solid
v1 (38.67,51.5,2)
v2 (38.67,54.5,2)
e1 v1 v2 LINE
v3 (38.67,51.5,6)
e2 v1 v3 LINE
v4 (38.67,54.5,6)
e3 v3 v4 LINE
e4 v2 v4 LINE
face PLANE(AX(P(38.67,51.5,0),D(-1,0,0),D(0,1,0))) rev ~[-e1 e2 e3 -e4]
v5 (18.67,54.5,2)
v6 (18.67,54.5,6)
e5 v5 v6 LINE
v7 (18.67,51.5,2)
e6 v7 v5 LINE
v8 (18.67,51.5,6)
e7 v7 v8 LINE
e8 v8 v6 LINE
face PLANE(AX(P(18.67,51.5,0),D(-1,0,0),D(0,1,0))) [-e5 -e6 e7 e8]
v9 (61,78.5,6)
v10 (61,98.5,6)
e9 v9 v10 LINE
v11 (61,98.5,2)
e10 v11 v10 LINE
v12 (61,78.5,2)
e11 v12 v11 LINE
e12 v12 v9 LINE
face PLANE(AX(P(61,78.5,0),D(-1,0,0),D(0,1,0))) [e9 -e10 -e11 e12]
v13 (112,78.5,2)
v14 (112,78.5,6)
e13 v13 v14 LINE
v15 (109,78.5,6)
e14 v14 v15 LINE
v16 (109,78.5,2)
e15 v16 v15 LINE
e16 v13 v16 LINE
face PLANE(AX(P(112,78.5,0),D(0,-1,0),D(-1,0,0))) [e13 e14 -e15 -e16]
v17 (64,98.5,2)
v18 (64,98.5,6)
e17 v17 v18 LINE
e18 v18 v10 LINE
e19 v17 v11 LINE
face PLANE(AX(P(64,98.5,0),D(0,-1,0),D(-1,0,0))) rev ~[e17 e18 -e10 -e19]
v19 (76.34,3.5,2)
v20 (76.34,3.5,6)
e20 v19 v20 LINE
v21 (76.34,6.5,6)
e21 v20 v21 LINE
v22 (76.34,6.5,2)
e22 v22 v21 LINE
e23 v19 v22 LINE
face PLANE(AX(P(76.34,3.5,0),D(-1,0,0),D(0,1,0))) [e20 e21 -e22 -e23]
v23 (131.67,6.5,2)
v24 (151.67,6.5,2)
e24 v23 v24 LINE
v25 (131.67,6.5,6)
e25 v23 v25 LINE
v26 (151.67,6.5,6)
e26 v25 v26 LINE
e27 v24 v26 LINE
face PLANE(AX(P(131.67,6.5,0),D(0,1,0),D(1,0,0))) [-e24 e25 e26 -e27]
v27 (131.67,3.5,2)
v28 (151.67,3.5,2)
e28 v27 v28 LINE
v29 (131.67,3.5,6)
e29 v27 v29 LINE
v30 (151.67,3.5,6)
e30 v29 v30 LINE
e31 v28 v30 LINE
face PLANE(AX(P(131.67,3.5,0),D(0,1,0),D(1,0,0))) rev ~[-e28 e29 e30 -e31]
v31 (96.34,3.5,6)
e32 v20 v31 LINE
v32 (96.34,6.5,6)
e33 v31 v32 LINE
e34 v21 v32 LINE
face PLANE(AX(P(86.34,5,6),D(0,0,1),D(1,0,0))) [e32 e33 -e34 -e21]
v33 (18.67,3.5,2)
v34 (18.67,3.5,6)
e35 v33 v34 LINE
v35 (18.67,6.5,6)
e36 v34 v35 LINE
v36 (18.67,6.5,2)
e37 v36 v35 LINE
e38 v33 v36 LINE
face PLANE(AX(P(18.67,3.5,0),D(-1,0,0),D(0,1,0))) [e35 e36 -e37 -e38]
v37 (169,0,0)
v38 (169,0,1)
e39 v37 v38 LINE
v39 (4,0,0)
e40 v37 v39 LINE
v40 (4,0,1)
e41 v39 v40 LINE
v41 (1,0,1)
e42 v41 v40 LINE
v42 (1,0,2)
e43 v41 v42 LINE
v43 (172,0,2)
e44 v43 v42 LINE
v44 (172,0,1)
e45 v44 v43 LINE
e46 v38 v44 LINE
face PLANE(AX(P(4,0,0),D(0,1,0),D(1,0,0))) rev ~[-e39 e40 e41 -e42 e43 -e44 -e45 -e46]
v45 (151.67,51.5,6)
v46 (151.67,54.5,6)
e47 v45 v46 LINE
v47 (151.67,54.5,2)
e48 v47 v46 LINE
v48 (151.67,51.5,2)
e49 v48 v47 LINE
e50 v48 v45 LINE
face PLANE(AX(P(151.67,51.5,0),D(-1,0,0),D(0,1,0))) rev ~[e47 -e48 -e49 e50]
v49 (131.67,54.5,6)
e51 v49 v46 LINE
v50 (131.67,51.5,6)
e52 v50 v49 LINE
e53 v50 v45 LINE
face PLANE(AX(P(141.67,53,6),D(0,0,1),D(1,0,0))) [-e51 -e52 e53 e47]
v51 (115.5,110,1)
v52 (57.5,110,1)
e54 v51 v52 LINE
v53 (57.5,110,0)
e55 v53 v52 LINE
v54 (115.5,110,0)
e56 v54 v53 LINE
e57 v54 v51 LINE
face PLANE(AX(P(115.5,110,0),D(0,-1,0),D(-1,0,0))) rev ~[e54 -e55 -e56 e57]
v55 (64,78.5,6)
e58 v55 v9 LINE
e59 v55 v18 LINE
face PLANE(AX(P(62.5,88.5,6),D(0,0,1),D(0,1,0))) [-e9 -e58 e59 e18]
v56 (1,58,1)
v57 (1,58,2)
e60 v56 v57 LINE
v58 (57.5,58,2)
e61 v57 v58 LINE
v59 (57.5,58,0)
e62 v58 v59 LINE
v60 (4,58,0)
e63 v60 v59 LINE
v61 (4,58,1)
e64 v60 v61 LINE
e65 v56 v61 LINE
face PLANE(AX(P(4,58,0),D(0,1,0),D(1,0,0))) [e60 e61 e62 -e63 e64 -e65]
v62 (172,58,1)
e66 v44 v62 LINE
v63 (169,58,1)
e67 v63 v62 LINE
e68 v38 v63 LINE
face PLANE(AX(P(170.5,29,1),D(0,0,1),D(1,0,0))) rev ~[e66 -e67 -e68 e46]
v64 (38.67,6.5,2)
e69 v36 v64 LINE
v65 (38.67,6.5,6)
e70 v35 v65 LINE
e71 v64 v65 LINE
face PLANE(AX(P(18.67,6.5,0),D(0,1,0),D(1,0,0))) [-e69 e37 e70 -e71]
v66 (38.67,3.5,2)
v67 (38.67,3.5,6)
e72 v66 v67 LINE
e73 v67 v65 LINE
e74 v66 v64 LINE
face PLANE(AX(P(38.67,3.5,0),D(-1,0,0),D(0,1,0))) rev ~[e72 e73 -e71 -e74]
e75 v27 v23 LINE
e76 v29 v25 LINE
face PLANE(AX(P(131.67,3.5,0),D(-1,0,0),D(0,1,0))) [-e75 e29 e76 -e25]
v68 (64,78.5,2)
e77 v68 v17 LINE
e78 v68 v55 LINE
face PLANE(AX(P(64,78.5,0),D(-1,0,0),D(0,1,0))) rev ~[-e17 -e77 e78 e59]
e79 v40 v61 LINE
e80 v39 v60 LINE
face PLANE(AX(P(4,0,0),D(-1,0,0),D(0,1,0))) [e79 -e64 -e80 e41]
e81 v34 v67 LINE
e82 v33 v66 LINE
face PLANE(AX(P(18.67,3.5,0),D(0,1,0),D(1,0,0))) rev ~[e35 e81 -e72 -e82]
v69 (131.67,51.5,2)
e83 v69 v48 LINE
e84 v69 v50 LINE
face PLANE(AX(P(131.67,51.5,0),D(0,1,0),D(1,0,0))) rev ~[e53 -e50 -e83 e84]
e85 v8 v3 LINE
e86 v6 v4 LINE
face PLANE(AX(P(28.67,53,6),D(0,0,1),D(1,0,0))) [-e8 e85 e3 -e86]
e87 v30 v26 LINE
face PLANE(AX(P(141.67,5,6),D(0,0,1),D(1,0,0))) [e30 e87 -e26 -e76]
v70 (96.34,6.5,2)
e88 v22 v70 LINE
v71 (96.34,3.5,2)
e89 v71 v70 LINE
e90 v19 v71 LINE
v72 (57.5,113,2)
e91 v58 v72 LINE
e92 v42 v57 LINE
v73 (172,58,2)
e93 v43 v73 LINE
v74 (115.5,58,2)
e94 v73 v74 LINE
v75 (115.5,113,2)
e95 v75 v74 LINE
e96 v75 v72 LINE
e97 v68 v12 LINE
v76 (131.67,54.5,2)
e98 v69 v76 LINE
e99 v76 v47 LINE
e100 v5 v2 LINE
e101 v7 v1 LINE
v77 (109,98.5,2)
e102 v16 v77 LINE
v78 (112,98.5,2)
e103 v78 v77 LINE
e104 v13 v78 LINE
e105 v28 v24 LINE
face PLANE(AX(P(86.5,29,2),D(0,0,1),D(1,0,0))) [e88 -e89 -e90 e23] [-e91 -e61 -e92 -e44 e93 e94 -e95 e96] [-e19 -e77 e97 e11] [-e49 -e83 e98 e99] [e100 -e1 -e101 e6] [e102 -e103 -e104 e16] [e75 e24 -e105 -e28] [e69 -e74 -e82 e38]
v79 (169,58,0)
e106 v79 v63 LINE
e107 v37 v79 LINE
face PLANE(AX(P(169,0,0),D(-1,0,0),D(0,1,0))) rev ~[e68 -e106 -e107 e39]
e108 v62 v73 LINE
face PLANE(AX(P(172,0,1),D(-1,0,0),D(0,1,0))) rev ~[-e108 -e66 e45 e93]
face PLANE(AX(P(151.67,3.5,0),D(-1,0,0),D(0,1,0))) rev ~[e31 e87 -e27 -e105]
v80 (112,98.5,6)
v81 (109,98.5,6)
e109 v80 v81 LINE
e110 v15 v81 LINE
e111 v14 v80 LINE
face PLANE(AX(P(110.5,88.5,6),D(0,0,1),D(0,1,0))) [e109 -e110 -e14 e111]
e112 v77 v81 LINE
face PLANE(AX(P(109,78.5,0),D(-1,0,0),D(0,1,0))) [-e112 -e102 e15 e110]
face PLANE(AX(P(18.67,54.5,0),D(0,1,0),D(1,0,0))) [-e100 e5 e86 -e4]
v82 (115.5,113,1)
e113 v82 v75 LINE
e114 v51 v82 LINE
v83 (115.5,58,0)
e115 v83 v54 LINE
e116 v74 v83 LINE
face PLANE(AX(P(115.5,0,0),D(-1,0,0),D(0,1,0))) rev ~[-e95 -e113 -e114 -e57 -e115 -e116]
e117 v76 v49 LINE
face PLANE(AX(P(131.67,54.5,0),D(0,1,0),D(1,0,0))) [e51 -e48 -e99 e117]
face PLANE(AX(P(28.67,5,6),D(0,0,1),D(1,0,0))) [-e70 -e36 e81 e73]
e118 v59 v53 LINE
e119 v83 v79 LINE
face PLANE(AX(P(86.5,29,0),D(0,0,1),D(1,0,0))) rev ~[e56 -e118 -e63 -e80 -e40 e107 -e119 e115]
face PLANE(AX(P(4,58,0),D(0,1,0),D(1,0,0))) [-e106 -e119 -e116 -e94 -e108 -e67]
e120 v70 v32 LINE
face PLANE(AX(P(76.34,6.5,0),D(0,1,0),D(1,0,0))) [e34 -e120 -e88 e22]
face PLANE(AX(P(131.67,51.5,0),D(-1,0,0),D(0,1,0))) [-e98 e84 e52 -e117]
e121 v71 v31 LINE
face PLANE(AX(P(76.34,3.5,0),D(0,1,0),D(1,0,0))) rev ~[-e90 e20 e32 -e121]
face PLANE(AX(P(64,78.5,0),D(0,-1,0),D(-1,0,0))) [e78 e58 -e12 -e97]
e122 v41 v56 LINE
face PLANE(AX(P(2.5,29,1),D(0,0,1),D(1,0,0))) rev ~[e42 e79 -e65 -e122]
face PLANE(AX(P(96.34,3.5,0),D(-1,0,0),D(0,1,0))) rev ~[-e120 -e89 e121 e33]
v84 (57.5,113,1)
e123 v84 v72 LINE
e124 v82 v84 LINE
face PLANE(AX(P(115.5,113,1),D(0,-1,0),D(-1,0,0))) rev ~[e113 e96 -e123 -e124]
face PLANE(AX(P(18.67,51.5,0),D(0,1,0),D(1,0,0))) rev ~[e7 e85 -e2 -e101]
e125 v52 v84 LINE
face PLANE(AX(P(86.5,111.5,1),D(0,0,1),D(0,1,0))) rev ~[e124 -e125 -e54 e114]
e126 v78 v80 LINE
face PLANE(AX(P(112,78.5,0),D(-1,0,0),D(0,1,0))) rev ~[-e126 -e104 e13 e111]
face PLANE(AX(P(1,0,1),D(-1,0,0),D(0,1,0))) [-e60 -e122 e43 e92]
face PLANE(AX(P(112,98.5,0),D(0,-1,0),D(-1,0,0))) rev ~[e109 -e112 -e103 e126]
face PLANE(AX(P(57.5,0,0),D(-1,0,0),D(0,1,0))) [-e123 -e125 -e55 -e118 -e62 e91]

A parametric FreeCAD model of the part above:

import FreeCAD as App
import Part
import Sketcher
from FreeCAD import Vector
Q = App.Units.Quantity


def add_polygon(sketch, points):
    """Adds a closed chain of lines whose ends are joined by coincident constraints."""
    first, n = sketch.GeometryCount, len(points)
    for a, b in zip(points, points[1:] + points[:1]):
        sketch.addGeometry(Part.LineSegment(App.Vector(*a, 0), App.Vector(*b, 0)), False)
    for i in range(n):
        sketch.addConstraint(Sketcher.Constraint("Coincident", first + i, 2, first + (i + 1) % n, 1))

doc = App.newDocument("Part")
body = doc.addObject("PartDesign::Body", "Body")

sketch1 = doc.addObject("Sketcher::SketchObject", "Sketch")
body.addObject(sketch1)
sketch1.AttachmentSupport = (doc.XY_Plane, [""])
sketch1.MapMode = "FlatFace"
sketch1.AttachmentOffset = App.Placement(Vector(0, 0, 1), App.Rotation())
add_polygon(sketch1, [(169, 58), (169, 0), (172, 0), (172, 58)])
sketch1.addConstraint(Sketcher.Constraint("Vertical", 0))
sketch1.addConstraint(Sketcher.Constraint("Horizontal", 1))
sketch1.addConstraint(Sketcher.Constraint("Vertical", 2))
sketch1.addConstraint(Sketcher.Constraint("Horizontal", 3))
sketch1.addConstraint(Sketcher.Constraint("PointOnObject", 0, 2, -1))
sketch1.addConstraint(Sketcher.Constraint("DistanceX", 1, 1, 1, 2, Q("3 mm")))
sketch1.addConstraint(Sketcher.Constraint("DistanceY", 0, 2, 0, 1, Q("58 mm")))
sketch1.addConstraint(Sketcher.Constraint("DistanceX", -1, 1, 0, 2, Q("169 mm")))
pad1 = doc.addObject("PartDesign::Pad", "Pad")
body.addObject(pad1)
pad1.Profile = sketch1
pad1.Length = 1
body2 = doc.addObject("PartDesign::Body", "Body001")

sketch2 = doc.addObject("Sketcher::SketchObject", "Sketch001")
body2.addObject(sketch2)
sketch2.AttachmentSupport = (doc.getObject("XY_Plane001"), [""])
sketch2.MapMode = "FlatFace"
sketch2.AttachmentOffset = App.Placement(Vector(0, 0, 1), App.Rotation())
add_polygon(sketch2, [(1, 58), (1, 0), (4, 0), (4, 58)])
sketch2.addConstraint(Sketcher.Constraint("Vertical", 0))
sketch2.addConstraint(Sketcher.Constraint("Horizontal", 1))
sketch2.addConstraint(Sketcher.Constraint("Vertical", 2))
sketch2.addConstraint(Sketcher.Constraint("Horizontal", 3))
sketch2.addConstraint(Sketcher.Constraint("PointOnObject", 0, 2, -1))
sketch2.addConstraint(Sketcher.Constraint("DistanceX", 1, 1, 1, 2, Q("3 mm")))
sketch2.addConstraint(Sketcher.Constraint("DistanceY", 0, 2, 0, 1, Q("58 mm")))
sketch2.addConstraint(Sketcher.Constraint("DistanceX", -1, 1, 0, 2, Q("1 mm")))
pad2 = doc.addObject("PartDesign::Pad", "Pad001")
body2.addObject(pad2)
pad2.Profile = sketch2
pad2.Length = 1
body3 = doc.addObject("PartDesign::Body", "Body002")

sketch3 = doc.addObject("Sketcher::SketchObject", "Sketch002")
body3.addObject(sketch3)
sketch3.AttachmentSupport = (doc.getObject("XY_Plane002"), [""])
sketch3.MapMode = "FlatFace"
add_polygon(sketch3, [(109, 78.5), (112, 78.5), (112, 98.5), (109, 98.5)])
sketch3.addConstraint(Sketcher.Constraint("Horizontal", 0))
sketch3.addConstraint(Sketcher.Constraint("Vertical", 1))
sketch3.addConstraint(Sketcher.Constraint("Horizontal", 2))
sketch3.addConstraint(Sketcher.Constraint("Vertical", 3))
sketch3.addConstraint(Sketcher.Constraint("DistanceX", 0, 1, 0, 2, Q("3 mm")))
sketch3.addConstraint(Sketcher.Constraint("DistanceY", 1, 1, 1, 2, Q("20 mm")))
sketch3.addConstraint(Sketcher.Constraint("DistanceX", -1, 1, 0, 2, Q("112 mm")))
sketch3.addConstraint(Sketcher.Constraint("DistanceY", -1, 1, 0, 2, Q("78.5 mm")))
pad3 = doc.addObject("PartDesign::Pad", "Pad002")
body3.addObject(pad3)
pad3.Profile = sketch3
pad3.Length = 6
body4 = doc.addObject("PartDesign::Body", "Body003")

sketch4 = doc.addObject("Sketcher::SketchObject", "Sketch003")
body4.addObject(sketch4)
sketch4.AttachmentSupport = (doc.getObject("XY_Plane003"), [""])
sketch4.MapMode = "FlatFace"
add_polygon(sketch4, [(61, 78.5), (64, 78.5), (64, 98.5), (61, 98.5)])
sketch4.addConstraint(Sketcher.Constraint("Horizontal", 0))
sketch4.addConstraint(Sketcher.Constraint("Vertical", 1))
sketch4.addConstraint(Sketcher.Constraint("Horizontal", 2))
sketch4.addConstraint(Sketcher.Constraint("Vertical", 3))
sketch4.addConstraint(Sketcher.Constraint("DistanceX", 0, 1, 0, 2, Q("3 mm")))
sketch4.addConstraint(Sketcher.Constraint("DistanceY", 1, 1, 1, 2, Q("20 mm")))
sketch4.addConstraint(Sketcher.Constraint("DistanceX", -1, 1, 0, 2, Q("64 mm")))
sketch4.addConstraint(Sketcher.Constraint("DistanceY", -1, 1, 0, 2, Q("78.5 mm")))
pad4 = doc.addObject("PartDesign::Pad", "Pad003")
body4.addObject(pad4)
pad4.Profile = sketch4
pad4.Length = 6
body5 = doc.addObject("PartDesign::Body", "Body004")

sketch5 = doc.addObject("Sketcher::SketchObject", "Sketch004")
body5.addObject(sketch5)
sketch5.AttachmentSupport = (doc.getObject("XY_Plane004"), [""])
sketch5.MapMode = "FlatFace"
add_polygon(sketch5, [(131.7, 54.5), (131.7, 51.5), (151.7, 51.5), (151.7, 54.5)])
sketch5.addConstraint(Sketcher.Constraint("Vertical", 0))
sketch5.addConstraint(Sketcher.Constraint("Horizontal", 1))
sketch5.addConstraint(Sketcher.Constraint("Vertical", 2))
sketch5.addConstraint(Sketcher.Constraint("Horizontal", 3))
sketch5.addConstraint(Sketcher.Constraint("DistanceX", 1, 1, 1, 2, Q("20 mm")))
sketch5.addConstraint(Sketcher.Constraint("DistanceY", 0, 2, 0, 1, Q("3 mm")))
sketch5.addConstraint(Sketcher.Constraint("DistanceY", -1, 1, 0, 2, Q("51.5 mm")))
sketch5.addConstraint(Sketcher.Constraint("DistanceX", -1, 1, 0, 2, Q("131.67 mm")))
pad5 = doc.addObject("PartDesign::Pad", "Pad004")
body5.addObject(pad5)
pad5.Profile = sketch5
pad5.Length = 6
body6 = doc.addObject("PartDesign::Body", "Body005")

sketch6 = doc.addObject("Sketcher::SketchObject", "Sketch005")
body6.addObject(sketch6)
sketch6.AttachmentSupport = (doc.getObject("XY_Plane005"), [""])
sketch6.MapMode = "FlatFace"
add_polygon(sketch6, [(18.7, 54.5), (18.7, 51.5), (38.7, 51.5), (38.7, 54.5)])
sketch6.addConstraint(Sketcher.Constraint("Vertical", 0))
sketch6.addConstraint(Sketcher.Constraint("Horizontal", 1))
sketch6.addConstraint(Sketcher.Constraint("Vertical", 2))
sketch6.addConstraint(Sketcher.Constraint("Horizontal", 3))
sketch6.addConstraint(Sketcher.Constraint("DistanceX", 1, 1, 1, 2, Q("20 mm")))
sketch6.addConstraint(Sketcher.Constraint("DistanceY", 0, 2, 0, 1, Q("3 mm")))
sketch6.addConstraint(Sketcher.Constraint("DistanceY", -1, 1, 0, 2, Q("51.5 mm")))
sketch6.addConstraint(Sketcher.Constraint("DistanceX", -1, 1, 0, 2, Q("18.67 mm")))
pad6 = doc.addObject("PartDesign::Pad", "Pad005")
body6.addObject(pad6)
pad6.Profile = sketch6
pad6.Length = 6
body7 = doc.addObject("PartDesign::Body", "Body006")

sketch7 = doc.addObject("Sketcher::SketchObject", "Sketch006")
body7.addObject(sketch7)
sketch7.AttachmentSupport = (doc.getObject("XY_Plane006"), [""])
sketch7.MapMode = "FlatFace"
add_polygon(sketch7, [(131.7, 6.5), (131.7, 3.5), (151.7, 3.5), (151.7, 6.5)])
sketch7.addConstraint(Sketcher.Constraint("Vertical", 0))
sketch7.addConstraint(Sketcher.Constraint("Horizontal", 1))
sketch7.addConstraint(Sketcher.Constraint("Vertical", 2))
sketch7.addConstraint(Sketcher.Constraint("Horizontal", 3))
sketch7.addConstraint(Sketcher.Constraint("DistanceX", 1, 1, 1, 2, Q("20 mm")))
sketch7.addConstraint(Sketcher.Constraint("DistanceY", 0, 2, 0, 1, Q("3 mm")))
sketch7.addConstraint(Sketcher.Constraint("DistanceY", -1, 1, 0, 2, Q("3.5 mm")))
sketch7.addConstraint(Sketcher.Constraint("DistanceX", -1, 1, 0, 2, Q("131.67 mm")))
pad7 = doc.addObject("PartDesign::Pad", "Pad006")
body7.addObject(pad7)
pad7.Profile = sketch7
pad7.Length = 6
body8 = doc.addObject("PartDesign::Body", "Body007")

sketch8 = doc.addObject("Sketcher::SketchObject", "Sketch007")
body8.addObject(sketch8)
sketch8.AttachmentSupport = (doc.getObject("XY_Plane007"), [""])
sketch8.MapMode = "FlatFace"
add_polygon(sketch8, [(76.3, 6.5), (76.3, 3.5), (96.3, 3.5), (96.3, 6.5)])
sketch8.addConstraint(Sketcher.Constraint("Vertical", 0))
sketch8.addConstraint(Sketcher.Constraint("Horizontal", 1))
sketch8.addConstraint(Sketcher.Constraint("Vertical", 2))
sketch8.addConstraint(Sketcher.Constraint("Horizontal", 3))
sketch8.addConstraint(Sketcher.Constraint("DistanceX", 1, 1, 1, 2, Q("20 mm")))
sketch8.addConstraint(Sketcher.Constraint("DistanceY", 0, 2, 0, 1, Q("3 mm")))
sketch8.addConstraint(Sketcher.Constraint("DistanceY", -1, 1, 0, 2, Q("3.5 mm")))
sketch8.addConstraint(Sketcher.Constraint("DistanceX", -1, 1, 0, 2, Q("76.34 mm")))
pad8 = doc.addObject("PartDesign::Pad", "Pad007")
body8.addObject(pad8)
pad8.Profile = sketch8
pad8.Length = 6
body9 = doc.addObject("PartDesign::Body", "Body008")

sketch9 = doc.addObject("Sketcher::SketchObject", "Sketch008")
body9.addObject(sketch9)
sketch9.AttachmentSupport = (doc.getObject("XY_Plane008"), [""])
sketch9.MapMode = "FlatFace"
add_polygon(sketch9, [(18.7, 6.5), (18.7, 3.5), (38.7, 3.5), (38.7, 6.5)])
sketch9.addConstraint(Sketcher.Constraint("Vertical", 0))
sketch9.addConstraint(Sketcher.Constraint("Horizontal", 1))
sketch9.addConstraint(Sketcher.Constraint("Vertical", 2))
sketch9.addConstraint(Sketcher.Constraint("Horizontal", 3))
sketch9.addConstraint(Sketcher.Constraint("DistanceX", 1, 1, 1, 2, Q("20 mm")))
sketch9.addConstraint(Sketcher.Constraint("DistanceY", 0, 2, 0, 1, Q("3 mm")))
sketch9.addConstraint(Sketcher.Constraint("DistanceY", -1, 1, 0, 2, Q("3.5 mm")))
sketch9.addConstraint(Sketcher.Constraint("DistanceX", -1, 1, 0, 2, Q("18.67 mm")))
pad9 = doc.addObject("PartDesign::Pad", "Pad008")
body9.addObject(pad9)
pad9.Profile = sketch9
pad9.Length = 6
body10 = doc.addObject("PartDesign::Body", "Body009")

sketch10 = doc.addObject("Sketcher::SketchObject", "Sketch009")
body10.addObject(sketch10)
sketch10.AttachmentSupport = (doc.getObject("XY_Plane009"), [""])
sketch10.MapMode = "FlatFace"
add_polygon(sketch10, [(58, 0), (116, 0), (116, 110), (58, 110)])
sketch10.addConstraint(Sketcher.Constraint("Horizontal", 0))
sketch10.addConstraint(Sketcher.Constraint("Vertical", 1))
sketch10.addConstraint(Sketcher.Constraint("Horizontal", 2))
sketch10.addConstraint(Sketcher.Constraint("Vertical", 3))
sketch10.addConstraint(Sketcher.Constraint("PointOnObject", 0, 2, -1))
sketch10.addConstraint(Sketcher.Constraint("DistanceX", 0, 1, 0, 2, Q("58 mm")))
sketch10.addConstraint(Sketcher.Constraint("DistanceY", 1, 1, 1, 2, Q("110 mm")))
sketch10.addConstraint(Sketcher.Constraint("DistanceX", -1, 1, 0, 2, Q("115.5 mm")))
pad10 = doc.addObject("PartDesign::Pad", "Pad009")
body10.addObject(pad10)
pad10.Profile = sketch10
pad10.Length = 2
body11 = doc.addObject("PartDesign::Body", "Body010")

sketch11 = doc.addObject("Sketcher::SketchObject", "Sketch010")
body11.addObject(sketch11)
sketch11.AttachmentSupport = (doc.getObject("XY_Plane010"), [""])
sketch11.MapMode = "FlatFace"
add_polygon(sketch11, [(4, 58), (4, 0), (169, 0), (169, 58)])
sketch11.addConstraint(Sketcher.Constraint("Vertical", 0))
sketch11.addConstraint(Sketcher.Constraint("Horizontal", 1))
sketch11.addConstraint(Sketcher.Constraint("Vertical", 2))
sketch11.addConstraint(Sketcher.Constraint("Horizontal", 3))
sketch11.addConstraint(Sketcher.Constraint("PointOnObject", 0, 2, -1))
sketch11.addConstraint(Sketcher.Constraint("DistanceX", 1, 1, 1, 2, Q("165 mm")))
sketch11.addConstraint(Sketcher.Constraint("DistanceY", 0, 2, 0, 1, Q("58 mm")))
sketch11.addConstraint(Sketcher.Constraint("DistanceX", -1, 1, 0, 2, Q("4 mm")))
pad11 = doc.addObject("PartDesign::Pad", "Pad010")
body11.addObject(pad11)
pad11.Profile = sketch11
pad11.Length = 2
body12 = doc.addObject("PartDesign::Body", "Body011")
body12.AllowCompound = True

sketch12 = doc.addObject("Sketcher::SketchObject", "Sketch011")
body12.addObject(sketch12)
sketch12.AttachmentSupport = (doc.getObject("XY_Plane011"), [""])
sketch12.MapMode = "FlatFace"
sketch12.AttachmentOffset = App.Placement(Vector(0, 0, 1), App.Rotation())
add_polygon(sketch12, [(57.5, 110), (115.5, 110), (115.5, 113), (57.5, 113)])
sketch12.addConstraint(Sketcher.Constraint("Horizontal", 0))
sketch12.addConstraint(Sketcher.Constraint("Vertical", 1))
sketch12.addConstraint(Sketcher.Constraint("Horizontal", 2))
sketch12.addConstraint(Sketcher.Constraint("Vertical", 3))
sketch12.addConstraint(Sketcher.Constraint("DistanceX", 0, 1, 0, 2, Q("58 mm")))
sketch12.addConstraint(Sketcher.Constraint("DistanceY", 1, 1, 1, 2, Q("3 mm")))
sketch12.addConstraint(Sketcher.Constraint("DistanceY", -1, 1, 0, 2, Q("110 mm")))
sketch12.addConstraint(Sketcher.Constraint("DistanceX", -1, 1, 0, 2, Q("115.5 mm")))
pad12 = doc.addObject("PartDesign::Pad", "Pad011")
body12.addObject(pad12)
pad12.Profile = sketch12
pad12.Length = 1
doc.recompute()

boolean = doc.addObject("PartDesign::Boolean", "Boolean")
body12.addObject(boolean)
boolean.Type = "Fuse"
boolean.addObjects([body])
doc.recompute()

boolean2 = doc.addObject("PartDesign::Boolean", "Boolean001")
body12.addObject(boolean2)
boolean2.Type = "Fuse"
boolean2.addObjects([body2])
doc.recompute()

boolean3 = doc.addObject("PartDesign::Boolean", "Boolean002")
body12.addObject(boolean3)
boolean3.Type = "Fuse"
boolean3.addObjects([body3])
doc.recompute()

boolean4 = doc.addObject("PartDesign::Boolean", "Boolean003")
body12.addObject(boolean4)
boolean4.Type = "Fuse"
boolean4.addObjects([body4])
doc.recompute()

boolean5 = doc.addObject("PartDesign::Boolean", "Boolean004")
body12.addObject(boolean5)
boolean5.Type = "Fuse"
boolean5.addObjects([body5])
doc.recompute()

boolean6 = doc.addObject("PartDesign::Boolean", "Boolean005")
body12.addObject(boolean6)
boolean6.Type = "Fuse"
boolean6.addObjects([body6])
doc.recompute()

boolean7 = doc.addObject("PartDesign::Boolean", "Boolean006")
body12.addObject(boolean7)
boolean7.Type = "Fuse"
boolean7.addObjects([body7])
doc.recompute()

boolean8 = doc.addObject("PartDesign::Boolean", "Boolean007")
body12.addObject(boolean8)
boolean8.Type = "Fuse"
boolean8.addObjects([body8])
doc.recompute()

boolean9 = doc.addObject("PartDesign::Boolean", "Boolean008")
body12.addObject(boolean9)
boolean9.Type = "Fuse"
boolean9.addObjects([body9])
doc.recompute()

boolean10 = doc.addObject("PartDesign::Boolean", "Boolean009")
body12.addObject(boolean10)
boolean10.Type = "Fuse"
boolean10.addObjects([body10])
doc.recompute()

boolean11 = doc.addObject("PartDesign::Boolean", "Boolean010")
body12.addObject(boolean11)
boolean11.Type = "Fuse"
boolean11.addObjects([body11])

doc.recompute()
